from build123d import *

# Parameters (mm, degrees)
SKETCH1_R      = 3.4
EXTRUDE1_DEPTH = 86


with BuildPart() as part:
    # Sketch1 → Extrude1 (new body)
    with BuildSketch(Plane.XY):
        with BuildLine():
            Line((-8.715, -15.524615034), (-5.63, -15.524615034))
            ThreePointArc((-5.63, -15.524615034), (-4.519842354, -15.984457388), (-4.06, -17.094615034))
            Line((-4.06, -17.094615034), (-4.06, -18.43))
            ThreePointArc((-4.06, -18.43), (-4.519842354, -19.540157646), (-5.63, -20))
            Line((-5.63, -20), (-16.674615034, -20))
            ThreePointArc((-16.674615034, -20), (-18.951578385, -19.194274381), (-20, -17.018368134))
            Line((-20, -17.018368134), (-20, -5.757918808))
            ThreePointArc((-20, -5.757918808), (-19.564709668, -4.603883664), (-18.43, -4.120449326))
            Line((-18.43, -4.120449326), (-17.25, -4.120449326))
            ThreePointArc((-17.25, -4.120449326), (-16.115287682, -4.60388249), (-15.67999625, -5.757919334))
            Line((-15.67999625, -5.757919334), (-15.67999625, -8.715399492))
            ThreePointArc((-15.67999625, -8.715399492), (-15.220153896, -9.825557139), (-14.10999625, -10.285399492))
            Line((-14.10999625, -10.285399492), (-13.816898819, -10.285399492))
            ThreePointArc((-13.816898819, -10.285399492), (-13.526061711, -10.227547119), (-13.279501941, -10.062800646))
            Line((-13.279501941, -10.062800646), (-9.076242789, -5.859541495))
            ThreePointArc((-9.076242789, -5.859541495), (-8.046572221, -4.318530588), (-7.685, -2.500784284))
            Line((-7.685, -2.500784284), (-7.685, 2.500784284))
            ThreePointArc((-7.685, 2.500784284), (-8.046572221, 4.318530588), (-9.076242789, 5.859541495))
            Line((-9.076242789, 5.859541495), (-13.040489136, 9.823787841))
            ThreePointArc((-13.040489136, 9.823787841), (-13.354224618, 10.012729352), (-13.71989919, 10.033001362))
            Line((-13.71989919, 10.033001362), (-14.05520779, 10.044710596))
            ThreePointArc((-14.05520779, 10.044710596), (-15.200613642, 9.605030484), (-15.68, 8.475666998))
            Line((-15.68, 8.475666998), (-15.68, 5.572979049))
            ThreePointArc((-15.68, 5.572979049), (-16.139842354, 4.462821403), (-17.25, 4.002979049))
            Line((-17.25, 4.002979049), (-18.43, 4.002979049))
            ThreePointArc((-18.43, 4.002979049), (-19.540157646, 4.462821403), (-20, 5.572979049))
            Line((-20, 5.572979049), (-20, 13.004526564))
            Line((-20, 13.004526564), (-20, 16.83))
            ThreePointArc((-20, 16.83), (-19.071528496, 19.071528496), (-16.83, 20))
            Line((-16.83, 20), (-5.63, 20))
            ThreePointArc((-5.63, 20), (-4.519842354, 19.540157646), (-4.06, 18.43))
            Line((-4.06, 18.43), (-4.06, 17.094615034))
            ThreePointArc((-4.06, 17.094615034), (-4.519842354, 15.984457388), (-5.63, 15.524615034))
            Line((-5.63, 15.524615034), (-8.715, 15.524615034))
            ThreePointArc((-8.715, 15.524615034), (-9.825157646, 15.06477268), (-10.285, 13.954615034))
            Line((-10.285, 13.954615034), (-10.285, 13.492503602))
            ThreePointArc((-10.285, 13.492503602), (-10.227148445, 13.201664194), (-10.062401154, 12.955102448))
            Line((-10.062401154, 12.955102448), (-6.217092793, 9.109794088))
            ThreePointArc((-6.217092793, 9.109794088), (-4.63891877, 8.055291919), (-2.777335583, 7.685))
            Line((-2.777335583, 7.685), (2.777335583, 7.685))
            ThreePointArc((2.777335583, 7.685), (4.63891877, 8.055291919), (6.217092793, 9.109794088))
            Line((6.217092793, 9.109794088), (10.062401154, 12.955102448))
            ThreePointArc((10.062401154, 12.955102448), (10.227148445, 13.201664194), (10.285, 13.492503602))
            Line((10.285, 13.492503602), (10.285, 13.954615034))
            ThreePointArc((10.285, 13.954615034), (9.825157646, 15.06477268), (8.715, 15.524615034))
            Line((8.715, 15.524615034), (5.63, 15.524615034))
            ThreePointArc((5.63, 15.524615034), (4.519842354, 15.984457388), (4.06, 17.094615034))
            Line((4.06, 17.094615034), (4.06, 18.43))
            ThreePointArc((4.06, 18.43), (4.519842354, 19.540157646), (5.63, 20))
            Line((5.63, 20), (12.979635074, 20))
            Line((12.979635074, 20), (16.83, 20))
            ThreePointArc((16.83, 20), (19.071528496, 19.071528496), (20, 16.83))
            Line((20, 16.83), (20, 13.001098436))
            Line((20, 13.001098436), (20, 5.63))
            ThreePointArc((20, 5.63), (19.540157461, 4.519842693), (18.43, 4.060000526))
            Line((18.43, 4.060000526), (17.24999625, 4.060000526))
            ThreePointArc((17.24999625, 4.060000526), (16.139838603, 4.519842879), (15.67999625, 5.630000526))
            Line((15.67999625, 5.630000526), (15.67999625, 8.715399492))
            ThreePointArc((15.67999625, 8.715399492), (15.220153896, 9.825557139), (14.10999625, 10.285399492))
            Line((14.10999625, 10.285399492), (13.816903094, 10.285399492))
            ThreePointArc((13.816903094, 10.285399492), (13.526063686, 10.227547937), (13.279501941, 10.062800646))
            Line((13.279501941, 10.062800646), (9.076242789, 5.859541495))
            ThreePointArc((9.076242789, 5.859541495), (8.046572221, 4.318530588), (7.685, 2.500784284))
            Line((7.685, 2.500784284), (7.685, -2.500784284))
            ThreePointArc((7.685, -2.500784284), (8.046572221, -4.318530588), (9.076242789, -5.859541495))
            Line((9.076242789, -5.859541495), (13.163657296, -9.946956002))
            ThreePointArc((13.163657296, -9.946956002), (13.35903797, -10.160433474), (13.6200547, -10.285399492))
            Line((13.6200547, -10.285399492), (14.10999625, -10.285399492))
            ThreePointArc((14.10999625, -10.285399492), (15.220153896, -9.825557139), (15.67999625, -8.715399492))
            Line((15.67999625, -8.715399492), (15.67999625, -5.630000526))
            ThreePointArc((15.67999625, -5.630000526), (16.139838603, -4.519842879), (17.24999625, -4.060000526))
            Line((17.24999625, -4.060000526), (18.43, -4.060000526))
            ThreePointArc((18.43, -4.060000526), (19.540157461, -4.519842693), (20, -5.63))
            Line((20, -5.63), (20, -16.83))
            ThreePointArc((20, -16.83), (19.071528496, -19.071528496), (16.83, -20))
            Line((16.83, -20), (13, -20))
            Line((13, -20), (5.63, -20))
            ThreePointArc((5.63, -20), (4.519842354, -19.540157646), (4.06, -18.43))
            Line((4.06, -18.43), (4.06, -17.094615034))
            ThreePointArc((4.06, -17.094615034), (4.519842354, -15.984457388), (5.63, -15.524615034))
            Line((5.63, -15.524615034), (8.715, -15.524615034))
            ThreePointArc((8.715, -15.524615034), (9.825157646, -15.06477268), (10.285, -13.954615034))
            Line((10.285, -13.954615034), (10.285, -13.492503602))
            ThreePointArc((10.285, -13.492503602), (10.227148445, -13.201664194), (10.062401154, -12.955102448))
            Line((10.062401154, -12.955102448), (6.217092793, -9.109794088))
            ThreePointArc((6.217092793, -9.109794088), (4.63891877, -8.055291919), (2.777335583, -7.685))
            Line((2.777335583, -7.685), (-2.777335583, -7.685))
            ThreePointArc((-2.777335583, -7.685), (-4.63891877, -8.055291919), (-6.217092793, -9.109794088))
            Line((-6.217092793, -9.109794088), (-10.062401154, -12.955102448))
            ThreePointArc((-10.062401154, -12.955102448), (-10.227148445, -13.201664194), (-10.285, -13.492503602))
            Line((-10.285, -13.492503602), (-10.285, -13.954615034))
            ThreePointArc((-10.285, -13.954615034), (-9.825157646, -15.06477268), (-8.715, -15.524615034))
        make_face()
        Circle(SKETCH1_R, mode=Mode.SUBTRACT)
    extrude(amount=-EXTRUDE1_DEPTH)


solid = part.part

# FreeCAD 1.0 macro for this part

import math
import FreeCAD as App
import Part
import Sketcher

V = App.Vector
Q = App.Units.Quantity

doc = App.newDocument("Part")
params = doc.addObject("Spreadsheet::Sheet", "Params")
for row, (alias, value) in enumerate([
    ("sketch1_diameter", "6.8 mm"),
    ("sketch1_radius", "1.57 mm"),
    ("sketch1_radius2", "0.76 mm"),
    ("sketch1_radius3", "3.17 mm"),
    ("sketch1_radius4", "4.75 mm"),
    ("pad1_length", "86 mm"),
], start=1):
    params.set(f"A{row}", alias)
    params.set(f"B{row}", "=" + value)
    params.setAlias(f"B{row}", alias)

body = doc.addObject("PartDesign::Body", "Body")

# Sketch on XY plane
sketch1 = doc.addObject("Sketcher::SketchObject", "Sketch")
body.addObject(sketch1)
sketch1.AttachmentSupport = (doc.XY_Plane, [""])
sketch1.MapMode = "FlatFace"
sketch1.addGeometry(Part.LineSegment(V(-5.63, -15.52, 0), V(-8.71, -15.52, 0)), False)
sketch1.addGeometry(Part.ArcOfCircle(Part.Circle(V(-8.71, -13.95, 0), V(0, 0, 1), 1.57), math.radians(-180), math.radians(-90)), False)
sketch1.addGeometry(Part.LineSegment(V(-10.29, -13.95, 0), V(-10.29, -13.49, 0)), False)
sketch1.addGeometry(Part.ArcOfCircle(Part.Circle(V(-9.52, -13.49, 0), V(0, 0, 1), 0.76), math.radians(135), math.radians(180)), False)
sketch1.addGeometry(Part.LineSegment(V(-10.06, -12.96, 0), V(-6.22, -9.11, 0)), False)
sketch1.addGeometry(Part.ArcOfCircle(Part.Circle(V(-2.78, -12.55, 0), V(0, 0, 1), 4.86), math.radians(90), math.radians(135)), False)
sketch1.addGeometry(Part.LineSegment(V(-2.78, -7.68, 0), V(2.78, -7.68, 0)), False)
sketch1.addGeometry(Part.ArcOfCircle(Part.Circle(V(2.78, -12.55, 0), V(0, 0, 1), 4.86), math.radians(45), math.radians(90)), False)
sketch1.addGeometry(Part.LineSegment(V(6.22, -9.11, 0), V(10.06, -12.96, 0)), False)
sketch1.addGeometry(Part.ArcOfCircle(Part.Circle(V(9.52, -13.49, 0), V(0, 0, 1), 0.76), math.radians(0), math.radians(45)), False)
sketch1.addGeometry(Part.LineSegment(V(10.29, -13.49, 0), V(10.29, -13.95, 0)), False)
sketch1.addGeometry(Part.ArcOfCircle(Part.Circle(V(8.71, -13.95, 0), V(0, 0, 1), 1.57), math.radians(-90), math.radians(0)), False)
sketch1.addGeometry(Part.LineSegment(V(8.71, -15.52, 0), V(5.63, -15.52, 0)), False)
sketch1.addGeometry(Part.ArcOfCircle(Part.Circle(V(5.63, -17.09, 0), V(0, 0, 1), 1.57), math.radians(90), math.radians(180)), False)
sketch1.addGeometry(Part.LineSegment(V(4.06, -17.09, 0), V(4.06, -18.43, 0)), False)
sketch1.addGeometry(Part.ArcOfCircle(Part.Circle(V(5.63, -18.43, 0), V(0, 0, 1), 1.57), math.radians(-180), math.radians(-90)), False)
sketch1.addGeometry(Part.LineSegment(V(5.63, -20, 0), V(16.83, -20, 0)), False)
sketch1.addGeometry(Part.ArcOfCircle(Part.Circle(V(16.83, -16.83, 0), V(0, 0, 1), 3.17), math.radians(-90), math.radians(0)), False)
sketch1.addGeometry(Part.LineSegment(V(20, -16.83, 0), V(20, -5.63, 0)), False)
sketch1.addGeometry(Part.ArcOfCircle(Part.Circle(V(18.43, -5.63, 0), V(0, 0, 1), 1.57), math.radians(0), math.radians(90)), False)
sketch1.addGeometry(Part.LineSegment(V(18.43, -4.06, 0), V(17.25, -4.06, 0)), False)
sketch1.addGeometry(Part.ArcOfCircle(Part.Circle(V(17.25, -5.63, 0), V(0, 0, 1), 1.57), math.radians(90), math.radians(180)), False)
sketch1.addGeometry(Part.LineSegment(V(15.68, -5.63, 0), V(15.68, -8.72, 0)), False)
sketch1.addGeometry(Part.ArcOfCircle(Part.Circle(V(14.11, -8.72, 0), V(0, 0, 1), 1.57), math.radians(-90), math.radians(0)), False)
sketch1.addGeometry(Part.LineSegment(V(14.11, -10.29, 0), V(13.62, -10.29, 0)), False)
sketch1.addGeometry(Part.ArcOfCircle(Part.Circle(V(13.81, -9.55, 0), V(0, 0, 1), 0.76), math.radians(-149), math.radians(-105)), False)
sketch1.addGeometry(Part.LineSegment(V(13.16, -9.95, 0), V(9.08, -5.86, 0)), False)
sketch1.addGeometry(Part.ArcOfCircle(Part.Circle(V(12.44, -2.5, 0), V(0, 0, 1), 4.75), math.radians(-180), math.radians(-135)), False)
sketch1.addGeometry(Part.LineSegment(V(7.68, -2.5, 0), V(7.68, 2.5, 0)), False)
sketch1.addGeometry(Part.ArcOfCircle(Part.Circle(V(12.44, 2.5, 0), V(0, 0, 1), 4.75), math.radians(135), math.radians(180)), False)
sketch1.addGeometry(Part.LineSegment(V(9.08, 5.86, 0), V(13.28, 10.06, 0)), False)
sketch1.addGeometry(Part.ArcOfCircle(Part.Circle(V(13.82, 9.53, 0), V(0, 0, 1), 0.76), math.radians(90), math.radians(135)), False)
sketch1.addGeometry(Part.LineSegment(V(13.82, 10.29, 0), V(14.11, 10.29, 0)), False)
sketch1.addGeometry(Part.ArcOfCircle(Part.Circle(V(14.11, 8.72, 0), V(0, 0, 1), 1.57), math.radians(0), math.radians(90)), False)
sketch1.addGeometry(Part.LineSegment(V(15.68, 8.72, 0), V(15.68, 5.63, 0)), False)
sketch1.addGeometry(Part.ArcOfCircle(Part.Circle(V(17.25, 5.63, 0), V(0, 0, 1), 1.57), math.radians(180), math.radians(270)), False)
sketch1.addGeometry(Part.LineSegment(V(17.25, 4.06, 0), V(18.43, 4.06, 0)), False)
sketch1.addGeometry(Part.ArcOfCircle(Part.Circle(V(18.43, 5.63, 0), V(0, 0, 1), 1.57), math.radians(-90), math.radians(0)), False)
sketch1.addGeometry(Part.LineSegment(V(20, 5.63, 0), V(20, 16.83, 0)), False)
sketch1.addGeometry(Part.ArcOfCircle(Part.Circle(V(16.83, 16.83, 0), V(0, 0, 1), 3.17), math.radians(0), math.radians(90)), False)
sketch1.addGeometry(Part.LineSegment(V(16.83, 20, 0), V(5.63, 20, 0)), False)
sketch1.addGeometry(Part.ArcOfCircle(Part.Circle(V(5.63, 18.43, 0), V(0, 0, 1), 1.57), math.radians(90), math.radians(180)), False)
sketch1.addGeometry(Part.LineSegment(V(4.06, 18.43, 0), V(4.06, 17.09, 0)), False)
sketch1.addGeometry(Part.ArcOfCircle(Part.Circle(V(5.63, 17.09, 0), V(0, 0, 1), 1.57), math.radians(-180), math.radians(-90)), False)
sketch1.addGeometry(Part.LineSegment(V(5.63, 15.52, 0), V(8.71, 15.52, 0)), False)
sketch1.addGeometry(Part.ArcOfCircle(Part.Circle(V(8.71, 13.95, 0), V(0, 0, 1), 1.57), math.radians(0), math.radians(90)), False)
sketch1.addGeometry(Part.LineSegment(V(10.29, 13.95, 0), V(10.29, 13.49, 0)), False)
sketch1.addGeometry(Part.ArcOfCircle(Part.Circle(V(9.52, 13.49, 0), V(0, 0, 1), 0.76), math.radians(-45), math.radians(0)), False)
sketch1.addGeometry(Part.LineSegment(V(10.06, 12.96, 0), V(6.22, 9.11, 0)), False)
sketch1.addGeometry(Part.ArcOfCircle(Part.Circle(V(2.78, 12.55, 0), V(0, 0, 1), 4.86), math.radians(-90), math.radians(-45)), False)
sketch1.addGeometry(Part.LineSegment(V(2.78, 7.68, 0), V(-2.78, 7.68, 0)), False)
sketch1.addGeometry(Part.ArcOfCircle(Part.Circle(V(-2.78, 12.55, 0), V(0, 0, 1), 4.86), math.radians(-135), math.radians(-90)), False)
sketch1.addGeometry(Part.LineSegment(V(-6.22, 9.11, 0), V(-10.06, 12.96, 0)), False)
sketch1.addGeometry(Part.ArcOfCircle(Part.Circle(V(-9.52, 13.49, 0), V(0, 0, 1), 0.76), math.radians(180), math.radians(225)), False)
sketch1.addGeometry(Part.LineSegment(V(-10.29, 13.49, 0), V(-10.29, 13.95, 0)), False)
sketch1.addGeometry(Part.ArcOfCircle(Part.Circle(V(-8.71, 13.95, 0), V(0, 0, 1), 1.57), math.radians(90), math.radians(180)), False)
sketch1.addGeometry(Part.LineSegment(V(-8.71, 15.52, 0), V(-5.63, 15.52, 0)), False)
sketch1.addGeometry(Part.ArcOfCircle(Part.Circle(V(-5.63, 17.09, 0), V(0, 0, 1), 1.57), math.radians(-90), math.radians(0)), False)
sketch1.addGeometry(Part.LineSegment(V(-4.06, 17.09, 0), V(-4.06, 18.43, 0)), False)
sketch1.addGeometry(Part.ArcOfCircle(Part.Circle(V(-5.63, 18.43, 0), V(0, 0, 1), 1.57), math.radians(0), math.radians(90)), False)
sketch1.addGeometry(Part.LineSegment(V(-5.63, 20, 0), V(-16.83, 20, 0)), False)
sketch1.addGeometry(Part.ArcOfCircle(Part.Circle(V(-16.83, 16.83, 0), V(0, 0, 1), 3.17), math.radians(90), math.radians(180)), False)
sketch1.addGeometry(Part.LineSegment(V(-20, 16.83, 0), V(-20, 5.57, 0)), False)
sketch1.addGeometry(Part.ArcOfCircle(Part.Circle(V(-18.43, 5.57, 0), V(0, 0, 1), 1.57), math.radians(-180), math.radians(-90)), False)
sketch1.addGeometry(Part.LineSegment(V(-18.43, 4, 0), V(-17.25, 4, 0)), False)
sketch1.addGeometry(Part.ArcOfCircle(Part.Circle(V(-17.25, 5.57, 0), V(0, 0, 1), 1.57), math.radians(-90), math.radians(0)), False)
sketch1.addGeometry(Part.LineSegment(V(-15.68, 5.57, 0), V(-15.68, 8.48, 0)), False)
sketch1.addGeometry(Part.ArcOfCircle(Part.Circle(V(-14.11, 8.48, 0), V(0, 0, 1), 1.57), math.radians(88), math.radians(180)), False)
sketch1.addGeometry(Part.LineSegment(V(-14.06, 10.04, 0), V(-13.72, 10.03, 0)), False)
sketch1.addGeometry(Part.ArcOfCircle(Part.Circle(V(-13.58, 9.29, 0), V(0, 0, 1), 0.76), math.radians(45), math.radians(101)), False)
sketch1.addGeometry(Part.LineSegment(V(-13.04, 9.82, 0), V(-9.08, 5.86, 0)), False)
sketch1.addGeometry(Part.ArcOfCircle(Part.Circle(V(-12.44, 2.5, 0), V(0, 0, 1), 4.75), math.radians(0), math.radians(45)), False)
sketch1.addGeometry(Part.LineSegment(V(-7.68, 2.5, 0), V(-7.68, -2.5, 0)), False)
sketch1.addGeometry(Part.ArcOfCircle(Part.Circle(V(-12.44, -2.5, 0), V(0, 0, 1), 4.75), math.radians(-45), math.radians(0)), False)
sketch1.addGeometry(Part.LineSegment(V(-9.08, -5.86, 0), V(-13.28, -10.06, 0)), False)
sketch1.addGeometry(Part.ArcOfCircle(Part.Circle(V(-13.82, -9.53, 0), V(0, 0, 1), 0.76), math.radians(-90), math.radians(-45)), False)
sketch1.addGeometry(Part.LineSegment(V(-13.82, -10.29, 0), V(-14.11, -10.29, 0)), False)
sketch1.addGeometry(Part.ArcOfCircle(Part.Circle(V(-14.11, -8.72, 0), V(0, 0, 1), 1.57), math.radians(180), math.radians(270)), False)
sketch1.addGeometry(Part.LineSegment(V(-15.68, -8.72, 0), V(-15.68, -5.76, 0)), False)
sketch1.addGeometry(Part.ArcOfCircle(Part.Circle(V(-17.25, -5.69, 0), V(0, 0, 1), 1.57), math.radians(-2), math.radians(90)), False)
sketch1.addGeometry(Part.LineSegment(V(-17.25, -4.12, 0), V(-18.43, -4.12, 0)), False)
sketch1.addGeometry(Part.ArcOfCircle(Part.Circle(V(-18.43, -5.69, 0), V(0, 0, 1), 1.57), math.radians(90), math.radians(182)), False)
sketch1.addGeometry(Part.LineSegment(V(-20, -5.76, 0), V(-20, -17.02, 0)), False)
sketch1.addGeometry(Part.ArcOfCircle(Part.Circle(V(-16.84, -16.83, 0), V(0, 0, 1), 3.17), math.radians(-177), math.radians(-87)), False)
sketch1.addGeometry(Part.LineSegment(V(-16.67, -20, 0), V(-5.63, -20, 0)), False)
sketch1.addGeometry(Part.ArcOfCircle(Part.Circle(V(-5.63, -18.43, 0), V(0, 0, 1), 1.57), math.radians(-90), math.radians(0)), False)
sketch1.addGeometry(Part.LineSegment(V(-4.06, -18.43, 0), V(-4.06, -17.09, 0)), False)
sketch1.addGeometry(Part.ArcOfCircle(Part.Circle(V(-5.63, -17.09, 0), V(0, 0, 1), 1.57), math.radians(0), math.radians(90)), False)
sketch1.addGeometry(Part.Circle(V(0, 0, 0), V(0, 0, 1), 3.4), False)
sketch1.addConstraint(Sketcher.Constraint("Tangent", 0, 2, 1, 2))
sketch1.addConstraint(Sketcher.Constraint("Tangent", 1, 1, 2, 1))
sketch1.addConstraint(Sketcher.Constraint("Tangent", 2, 2, 3, 2))
sketch1.addConstraint(Sketcher.Constraint("Tangent", 3, 1, 4, 1))
sketch1.addConstraint(Sketcher.Constraint("Tangent", 4, 2, 5, 2))
sketch1.addConstraint(Sketcher.Constraint("Tangent", 5, 1, 6, 1))
sketch1.addConstraint(Sketcher.Constraint("Tangent", 6, 2, 7, 2))
sketch1.addConstraint(Sketcher.Constraint("Tangent", 7, 1, 8, 1))
sketch1.addConstraint(Sketcher.Constraint("Tangent", 8, 2, 9, 2))
sketch1.addConstraint(Sketcher.Constraint("Tangent", 9, 1, 10, 1))
sketch1.addConstraint(Sketcher.Constraint("Tangent", 10, 2, 11, 2))
sketch1.addConstraint(Sketcher.Constraint("Tangent", 11, 1, 12, 1))
sketch1.addConstraint(Sketcher.Constraint("Tangent", 12, 2, 13, 1))
sketch1.addConstraint(Sketcher.Constraint("Tangent", 13, 2, 14, 1))
sketch1.addConstraint(Sketcher.Constraint("Tangent", 14, 2, 15, 1))
sketch1.addConstraint(Sketcher.Constraint("Tangent", 15, 2, 16, 1))
sketch1.addConstraint(Sketcher.Constraint("Tangent", 16, 2, 17, 1))
sketch1.addConstraint(Sketcher.Constraint("Tangent", 17, 2, 18, 1))
sketch1.addConstraint(Sketcher.Constraint("Tangent", 18, 2, 19, 1))
sketch1.addConstraint(Sketcher.Constraint("Tangent", 19, 2, 20, 1))
sketch1.addConstraint(Sketcher.Constraint("Tangent", 20, 2, 21, 1))
sketch1.addConstraint(Sketcher.Constraint("Tangent", 21, 2, 22, 1))
sketch1.addConstraint(Sketcher.Constraint("Tangent", 22, 2, 23, 2))
sketch1.addConstraint(Sketcher.Constraint("Tangent", 23, 1, 24, 1))
sketch1.addConstraint(Sketcher.Constraint("Coincident", 24, 2, 25, 2))
sketch1.addConstraint(Sketcher.Constraint("Coincident", 25, 1, 26, 1))
sketch1.addConstraint(Sketcher.Constraint("Tangent", 26, 2, 27, 2))
sketch1.addConstraint(Sketcher.Constraint("Tangent", 27, 1, 28, 1))
sketch1.addConstraint(Sketcher.Constraint("Tangent", 28, 2, 29, 2))
sketch1.addConstraint(Sketcher.Constraint("Tangent", 29, 1, 30, 1))
sketch1.addConstraint(Sketcher.Constraint("Tangent", 30, 2, 31, 2))
sketch1.addConstraint(Sketcher.Constraint("Tangent", 31, 1, 32, 1))
sketch1.addConstraint(Sketcher.Constraint("Tangent", 32, 2, 33, 2))
sketch1.addConstraint(Sketcher.Constraint("Tangent", 33, 1, 34, 1))
sketch1.addConstraint(Sketcher.Constraint("Tangent", 34, 2, 35, 1))
sketch1.addConstraint(Sketcher.Constraint("Tangent", 35, 2, 36, 1))
sketch1.addConstraint(Sketcher.Constraint("Tangent", 36, 2, 37, 1))
sketch1.addConstraint(Sketcher.Constraint("Tangent", 37, 2, 38, 1))
sketch1.addConstraint(Sketcher.Constraint("Tangent", 38, 2, 39, 1))
sketch1.addConstraint(Sketcher.Constraint("Tangent", 39, 2, 40, 1))
sketch1.addConstraint(Sketcher.Constraint("Tangent", 40, 2, 41, 1))
sketch1.addConstraint(Sketcher.Constraint("Tangent", 41, 2, 42, 1))
sketch1.addConstraint(Sketcher.Constraint("Tangent", 42, 2, 43, 1))
sketch1.addConstraint(Sketcher.Constraint("Tangent", 43, 2, 44, 1))
sketch1.addConstraint(Sketcher.Constraint("Tangent", 44, 2, 45, 2))
sketch1.addConstraint(Sketcher.Constraint("Tangent", 45, 1, 46, 1))
sketch1.addConstraint(Sketcher.Constraint("Tangent", 46, 2, 47, 2))
sketch1.addConstraint(Sketcher.Constraint("Tangent", 47, 1, 48, 1))
sketch1.addConstraint(Sketcher.Constraint("Tangent", 48, 2, 49, 2))
sketch1.addConstraint(Sketcher.Constraint("Tangent", 49, 1, 50, 1))
sketch1.addConstraint(Sketcher.Constraint("Tangent", 50, 2, 51, 2))
sketch1.addConstraint(Sketcher.Constraint("Tangent", 51, 1, 52, 1))
sketch1.addConstraint(Sketcher.Constraint("Tangent", 52, 2, 53, 2))
sketch1.addConstraint(Sketcher.Constraint("Tangent", 53, 1, 54, 1))
sketch1.addConstraint(Sketcher.Constraint("Tangent", 54, 2, 55, 2))
sketch1.addConstraint(Sketcher.Constraint("Tangent", 55, 1, 56, 1))
sketch1.addConstraint(Sketcher.Constraint("Tangent", 56, 2, 57, 1))
sketch1.addConstraint(Sketcher.Constraint("Tangent", 57, 2, 58, 1))
sketch1.addConstraint(Sketcher.Constraint("Tangent", 58, 2, 59, 1))
sketch1.addConstraint(Sketcher.Constraint("Tangent", 59, 2, 60, 1))
sketch1.addConstraint(Sketcher.Constraint("Tangent", 60, 2, 61, 1))
sketch1.addConstraint(Sketcher.Constraint("Tangent", 61, 2, 62, 1))
sketch1.addConstraint(Sketcher.Constraint("Tangent", 62, 2, 63, 1))
sketch1.addConstraint(Sketcher.Constraint("Tangent", 63, 2, 64, 1))
sketch1.addConstraint(Sketcher.Constraint("Tangent", 64, 2, 65, 1))
sketch1.addConstraint(Sketcher.Constraint("Tangent", 65, 2, 66, 1))
sketch1.addConstraint(Sketcher.Constraint("Tangent", 66, 2, 67, 2))
sketch1.addConstraint(Sketcher.Constraint("Tangent", 67, 1, 68, 1))
sketch1.addConstraint(Sketcher.Constraint("Coincident", 68, 2, 69, 2))
sketch1.addConstraint(Sketcher.Constraint("Tangent", 69, 1, 70, 1))
sketch1.addConstraint(Sketcher.Constraint("Tangent", 70, 2, 71, 2))
sketch1.addConstraint(Sketcher.Constraint("Tangent", 71, 1, 72, 1))
sketch1.addConstraint(Sketcher.Constraint("Tangent", 72, 2, 73, 2))
sketch1.addConstraint(Sketcher.Constraint("Tangent", 73, 1, 74, 1))
sketch1.addConstraint(Sketcher.Constraint("Tangent", 74, 2, 75, 2))
sketch1.addConstraint(Sketcher.Constraint("Coincident", 75, 1, 76, 1))
sketch1.addConstraint(Sketcher.Constraint("Tangent", 76, 2, 77, 2))
sketch1.addConstraint(Sketcher.Constraint("Tangent", 77, 1, 78, 1))
sketch1.addConstraint(Sketcher.Constraint("Coincident", 78, 2, 79, 1))
sketch1.addConstraint(Sketcher.Constraint("Coincident", 79, 2, 80, 1))
sketch1.addConstraint(Sketcher.Constraint("Coincident", 80, 2, 81, 1))
sketch1.addConstraint(Sketcher.Constraint("Coincident", 81, 2, 82, 1))
sketch1.addConstraint(Sketcher.Constraint("Coincident", 82, 2, 83, 1))
sketch1.addConstraint(Sketcher.Constraint("Coincident", 83, 2, 84, 1))
sketch1.addConstraint(Sketcher.Constraint("Tangent", 84, 2, 85, 1))
sketch1.addConstraint(Sketcher.Constraint("Tangent", 85, 2, 86, 1))
sketch1.addConstraint(Sketcher.Constraint("Tangent", 86, 2, 87, 1))
sketch1.addConstraint(Sketcher.Constraint("Tangent", 87, 2, 0, 1))
sketch1.addConstraint(Sketcher.Constraint("Horizontal", 0))
sketch1.addConstraint(Sketcher.Constraint("Vertical", 2))
sketch1.addConstraint(Sketcher.Constraint("Horizontal", 6))
sketch1.addConstraint(Sketcher.Constraint("Vertical", 10))
sketch1.addConstraint(Sketcher.Constraint("Horizontal", 12))
sketch1.addConstraint(Sketcher.Constraint("Vertical", 14))
sketch1.addConstraint(Sketcher.Constraint("Horizontal", 16))
sketch1.addConstraint(Sketcher.Constraint("Vertical", 18))
sketch1.addConstraint(Sketcher.Constraint("Horizontal", 20))
sketch1.addConstraint(Sketcher.Constraint("Vertical", 22))
sketch1.addConstraint(Sketcher.Constraint("Horizontal", 24))
sketch1.addConstraint(Sketcher.Constraint("Vertical", 28))
sketch1.addConstraint(Sketcher.Constraint("Horizontal", 32))
sketch1.addConstraint(Sketcher.Constraint("Vertical", 34))
sketch1.addConstraint(Sketcher.Constraint("Horizontal", 36))
sketch1.addConstraint(Sketcher.Constraint("Vertical", 38))
sketch1.addConstraint(Sketcher.Constraint("Horizontal", 40))
sketch1.addConstraint(Sketcher.Constraint("Vertical", 42))
sketch1.addConstraint(Sketcher.Constraint("Horizontal", 44))
sketch1.addConstraint(Sketcher.Constraint("Vertical", 46))
sketch1.addConstraint(Sketcher.Constraint("Horizontal", 50))
sketch1.addConstraint(Sketcher.Constraint("Vertical", 54))
sketch1.addConstraint(Sketcher.Constraint("Horizontal", 56))
sketch1.addConstraint(Sketcher.Constraint("Vertical", 58))
sketch1.addConstraint(Sketcher.Constraint("Horizontal", 60))
sketch1.addConstraint(Sketcher.Constraint("Vertical", 62))
sketch1.addConstraint(Sketcher.Constraint("Horizontal", 64))
sketch1.addConstraint(Sketcher.Constraint("Vertical", 66))
sketch1.addConstraint(Sketcher.Constraint("Vertical", 72))
sketch1.addConstraint(Sketcher.Constraint("Horizontal", 76))
sketch1.addConstraint(Sketcher.Constraint("Vertical", 78))
sketch1.addConstraint(Sketcher.Constraint("Horizontal", 80))
sketch1.addConstraint(Sketcher.Constraint("Vertical", 82))
sketch1.addConstraint(Sketcher.Constraint("Horizontal", 84))
sketch1.addConstraint(Sketcher.Constraint("Vertical", 86))
sketch1.addConstraint(Sketcher.Constraint("Coincident", 88, 3, -1, 1))
sketch1.addConstraint(Sketcher.Constraint("Equal", 5, 7))
sketch1.addConstraint(Sketcher.Constraint("Equal", 3, 9))
sketch1.addConstraint(Sketcher.Constraint("Equal", 1, 11))
sketch1.addConstraint(Sketcher.Constraint("Equal", 11, 13))
sketch1.addConstraint(Sketcher.Constraint("Equal", 13, 15))
sketch1.addConstraint(Sketcher.Constraint("Equal", 15, 19))
sketch1.addConstraint(Sketcher.Constraint("Equal", 19, 21))
sketch1.addConstraint(Sketcher.Constraint("Equal", 21, 23))
sketch1.addConstraint(Sketcher.Constraint("Equal", 9, 25))
sketch1.addConstraint(Sketcher.Constraint("Equal", 27, 29))
sketch1.addConstraint(Sketcher.Constraint("Equal", 25, 31))
sketch1.addConstraint(Sketcher.Constraint("Equal", 23, 33))
sketch1.addConstraint(Sketcher.Constraint("Equal", 33, 35))
sketch1.addConstraint(Sketcher.Constraint("Equal", 35, 37))
sketch1.addConstraint(Sketcher.Constraint("Equal", 17, 39))
sketch1.addConstraint(Sketcher.Constraint("Equal", 37, 41))
sketch1.addConstraint(Sketcher.Constraint("Equal", 41, 43))
sketch1.addConstraint(Sketcher.Constraint("Equal", 43, 45))
sketch1.addConstraint(Sketcher.Constraint("Equal", 31, 47))
sketch1.addConstraint(Sketcher.Constraint("Equal", 7, 49))
sketch1.addConstraint(Sketcher.Constraint("Equal", 49, 51))
sketch1.addConstraint(Sketcher.Constraint("Equal", 47, 53))
sketch1.addConstraint(Sketcher.Constraint("Equal", 45, 55))
sketch1.addConstraint(Sketcher.Constraint("Equal", 55, 57))
sketch1.addConstraint(Sketcher.Constraint("Equal", 57, 59))
sketch1.addConstraint(Sketcher.Constraint("Equal", 39, 61))
sketch1.addConstraint(Sketcher.Constraint("Equal", 59, 63))
sketch1.addConstraint(Sketcher.Constraint("Equal", 63, 65))
sketch1.addConstraint(Sketcher.Constraint("Equal", 65, 67))
sketch1.addConstraint(Sketcher.Constraint("Equal", 53, 69))
sketch1.addConstraint(Sketcher.Constraint("Equal", 29, 71))
sketch1.addConstraint(Sketcher.Constraint("Equal", 71, 73))
sketch1.addConstraint(Sketcher.Constraint("Equal", 69, 75))
sketch1.addConstraint(Sketcher.Constraint("Equal", 67, 77))
sketch1.addConstraint(Sketcher.Constraint("Equal", 77, 79))
sketch1.addConstraint(Sketcher.Constraint("Equal", 79, 81))
sketch1.addConstraint(Sketcher.Constraint("Equal", 61, 83))
sketch1.addConstraint(Sketcher.Constraint("Equal", 81, 85))
sketch1.addConstraint(Sketcher.Constraint("Equal", 85, 87))
sketch1.addConstraint(Sketcher.Constraint("Symmetric", 1, 3, 45, 3, -1, 1))
sketch1.addConstraint(Sketcher.Constraint("Symmetric", 5, 3, 49, 3, -1, 1))
sketch1.addConstraint(Sketcher.Constraint("Symmetric", 9, 3, 53, 3, -1, 1))
sketch1.addConstraint(Sketcher.Constraint("Symmetric", 13, 3, 57, 3, -1, 1))
sketch1.addConstraint(Sketcher.Constraint("Symmetric", 17, 3, 61, 3, -1, 1))
sketch1.addConstraint(Sketcher.Constraint("Symmetric", 27, 3, 71, 3, -1, 1))
sketch1.addConstraint(Sketcher.Constraint("Symmetric", 31, 3, 75, 3, -1, 1))
sketch1.addConstraint(Sketcher.Constraint("Symmetric", 41, 3, 85, 3, -1, 1))
sketch1.addConstraint(Sketcher.Constraint("Symmetric", 3, 3, 9, 3, -2))
sketch1.addConstraint(Sketcher.Constraint("Symmetric", 43, 3, 57, 3, -2))
sketch1.addConstraint(Sketcher.Constraint("Symmetric", 39, 3, 61, 3, -2))
sketch1.addConstraint(Sketcher.Constraint("Symmetric", 23, 3, 77, 3, -2))
sketch1.addConstraint(Sketcher.Constraint("Symmetric", 48, 2, 51, 1, -2))
sketch1.addConstraint(Sketcher.Constraint("Symmetric", 29, 1, 70, 2, -2))
sketch1.addConstraint(Sketcher.Constraint("Symmetric", 26, 2, 73, 1, -2))
sketch1.addConstraint(Sketcher.Constraint("Symmetric", 21, 3, 35, 3, -1))
sketch1.addConstraint(Sketcher.Constraint("Perpendicular", 4, 8))
sketch1.addConstraint(Sketcher.Constraint("Parallel", 8, 26))
sketch1.addConstraint(Sketcher.Constraint("Perpendicular", 26, 30))
sketch1.addConstraint(Sketcher.Constraint("Horizontal", 78, 2, 81, 2))
sketch1.addConstraint(Sketcher.Constraint("Vertical", 64, 2, 79, 2))
sketch1.addConstraint(Sketcher.Constraint("Vertical", 63, 2, 80, 2))
sketch1.addConstraint(Sketcher.Constraint("Vertical", 62, 2, 81, 2))
sketch1.addConstraint(Sketcher.Constraint("Equal", 60, 18))
sketch1.addConstraint(Sketcher.Constraint("Diameter", 88, Q("6.8 mm")))
sketch1.addConstraint(Sketcher.Constraint("Angle", 68, Q("-2 deg")))
sketch1.addConstraint(Sketcher.Constraint("Radius", 1, Q("1.57 mm")))
sketch1.addConstraint(Sketcher.Constraint("Radius", 3, Q("0.76 mm")))
sketch1.addConstraint(Sketcher.Constraint("Radius", 17, Q("3.17 mm")))
sketch1.addConstraint(Sketcher.Constraint("Radius", 27, Q("4.75 mm")))
sketch1.addConstraint(Sketcher.Constraint("DistanceX", 16, 1, 16, 2, Q("11.2 mm")))
sketch1.addConstraint(Sketcher.Constraint("DistanceY", 15, 2, -1, 1, Q("20 mm")))
sketch1.addConstraint(Sketcher.Constraint("DistanceX", -1, 1, 17, 2, Q("20 mm")))
sketch1.addConstraint(Sketcher.Constraint("DistanceX", 64, 1, 64, 2, Q("1.18 mm")))
sketch1.addConstraint(Sketcher.Constraint("DistanceX", 0, 2, 0, 1, Q("3.085 mm")))
sketch1.addConstraint(Sketcher.Constraint("Radius", 5, Q("4.864551 mm")))
sketch1.addConstraint(Sketcher.Constraint("DistanceY", 22, 2, 22, 1, Q("3.085399 mm")))
sketch1.addConstraint(Sketcher.Constraint("DistanceX", -1, 1, 27, 3, Q("12.435 mm")))
sketch1.addConstraint(Sketcher.Constraint("DistanceY", 5, 1, -1, 1, Q("7.685 mm")))
sketch1.addConstraint(Sketcher.Constraint("DistanceY", -1, 1, 68, 2, Q("10.033001 mm")))
sketch1.addConstraint(Sketcher.Constraint("DistanceX", 6, 1, 6, 2, Q("5.554671 mm")))
sketch1.addConstraint(Sketcher.Constraint("DistanceX", 24, 2, 24, 1, Q("0.489942 mm")))
sketch1.addConstraint(Sketcher.Constraint("DistanceY", 2, 1, 2, 2, Q("0.462111 mm")))
sketch1.addConstraint(Sketcher.Constraint("DistanceY", 28, 1, 28, 2, Q("5.001569 mm")))
sketch1.addConstraint(Sketcher.Constraint("DistanceY", 62, 2, 62, 1, Q("11.257021 mm")))
sketch1.addConstraint(Sketcher.Constraint("DistanceY", 78, 1, 78, 2, Q("2.95748 mm")))
sketch1.addConstraint(Sketcher.Constraint("DistanceY", 82, 2, 82, 1, Q("11.260449 mm")))
sketch1.addConstraint(Sketcher.Constraint("DistanceX", 68, 2, -1, 1, Q("13.719899 mm")))
sketch1.addConstraint(Sketcher.Constraint("DistanceX", 75, 1, -1, 1, Q("13.816899 mm")))
sketch1.addConstraint(Sketcher.Constraint("DistanceX", 20, 2, 20, 1, Q("1.180004 mm")))
sketch1.addConstraint(Sketcher.Constraint("DistanceX", 84, 1, 84, 2, Q("11.044615 mm")))
sketch1.addConstraint(Sketcher.Constraint("DistanceX", -1, 1, 25, 3, Q("13.811732 mm")))
sketch1.addConstraint(Sketcher.Constraint("DistanceY", 79, 3, -1, 1, Q("5.690449 mm")))
sketch1.setExpression("Constraints[187]", "Params.sketch1_diameter")
sketch1.setExpression("Constraints[189]", "Params.sketch1_radius")
sketch1.setExpression("Constraints[190]", "Params.sketch1_radius2")
sketch1.setExpression("Constraints[191]", "Params.sketch1_radius3")
sketch1.setExpression("Constraints[192]", "Params.sketch1_radius4")
pad1 = doc.addObject("PartDesign::Pad", "Pad")
body.addObject(pad1)
pad1.Profile = sketch1
pad1.setExpression("Length", "Params.pad1_length")
pad1.Reversed = True

doc.recompute()
